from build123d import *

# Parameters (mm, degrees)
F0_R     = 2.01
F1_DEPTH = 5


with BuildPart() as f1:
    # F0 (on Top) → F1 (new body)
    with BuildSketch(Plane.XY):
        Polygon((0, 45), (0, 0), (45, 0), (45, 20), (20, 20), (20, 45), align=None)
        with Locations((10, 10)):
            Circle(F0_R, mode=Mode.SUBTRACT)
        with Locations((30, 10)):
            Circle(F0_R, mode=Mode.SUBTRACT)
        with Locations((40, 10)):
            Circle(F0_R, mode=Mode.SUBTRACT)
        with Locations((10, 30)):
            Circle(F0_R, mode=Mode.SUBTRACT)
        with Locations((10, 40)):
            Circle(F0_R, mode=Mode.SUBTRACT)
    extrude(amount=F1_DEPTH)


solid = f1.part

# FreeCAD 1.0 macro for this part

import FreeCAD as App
import Part
import Sketcher

V = App.Vector
Q = App.Units.Quantity


def add_polygon(sketch, points):
    """Adds a closed chain of lines whose ends are joined by coincident constraints."""
    first, n = sketch.GeometryCount, len(points)
    for a, b in zip(points, points[1:] + points[:1]):
        sketch.addGeometry(Part.LineSegment(App.Vector(*a, 0), App.Vector(*b, 0)), False)
    for i in range(n):
        sketch.addConstraint(Sketcher.Constraint("Coincident", first + i, 2, first + (i + 1) % n, 1))

doc = App.newDocument("Part")
body = doc.addObject("PartDesign::Body", "Body")

# Sketch on XY plane
sketch1 = body.newObject("Sketcher::SketchObject", "Sketch")
sketch1.AttachmentSupport = (doc.getObject("XY_Plane"), [""])
sketch1.MapMode = "FlatFace"
add_polygon(sketch1, [(0, 45), (0, 0), (45, 0), (45, 20), (20, 20), (20, 45)])  # lines 0-5
sketch1.addGeometry(Part.Circle(V(10, 10, 0), V(0, 0, 1), 2), False)  # 6
sketch1.addGeometry(Part.Circle(V(30, 10, 0), V(0, 0, 1), 2), False)  # 7
sketch1.addGeometry(Part.Circle(V(40, 10, 0), V(0, 0, 1), 2), False)  # 8
sketch1.addGeometry(Part.Circle(V(10, 30, 0), V(0, 0, 1), 2), False)  # 9
sketch1.addGeometry(Part.Circle(V(10, 40, 0), V(0, 0, 1), 2), False)  # 10
sketch1.addConstraint([
    Sketcher.Constraint("Vertical", 0),
    Sketcher.Constraint("Horizontal", 1),
    Sketcher.Constraint("Vertical", 2),
    Sketcher.Constraint("Horizontal", 3),
    Sketcher.Constraint("Vertical", 4),
    Sketcher.Constraint("Horizontal", 5),
    Sketcher.Constraint("Coincident", 0, 2, -1, 1),
    Sketcher.Constraint("Equal", 6, 7),
    Sketcher.Constraint("Equal", 7, 8),
    Sketcher.Constraint("Equal", 8, 9),
    Sketcher.Constraint("Equal", 9, 10),
    Sketcher.Constraint("Horizontal", 6, 3, 7, 3),
    Sketcher.Constraint("Horizontal", 7, 3, 8, 3),
    Sketcher.Constraint("Vertical", 6, 3, 9, 3),
    Sketcher.Constraint("Vertical", 9, 3, 10, 3),
    Sketcher.Constraint("Equal", 1, 0),
    Sketcher.Constraint("Equal", 5, 2),
    Sketcher.Constraint("Diameter", 6, Q("4.02 mm")),
    Sketcher.Constraint("DistanceX", 1, 1, 1, 2, Q("45 mm")),
    Sketcher.Constraint("DistanceX", 3, 2, 3, 1, Q("25 mm")),
    Sketcher.Constraint("DistanceX", -1, 1, 6, 3, Q("10 mm")),
    Sketcher.Constraint("DistanceY", -1, 1, 6, 3, Q("10 mm")),
    Sketcher.Constraint("DistanceX", -1, 1, 7, 3, Q("30 mm")),
    Sketcher.Constraint("DistanceX", -1, 1, 8, 3, Q("40 mm")),
    Sketcher.Constraint("DistanceY", -1, 1, 9, 3, Q("30 mm")),
    Sketcher.Constraint("DistanceY", -1, 1, 10, 3, Q("40 mm")),
])
pad1 = body.newObject("PartDesign::Pad", "Pad")
pad1.Profile = sketch1
pad1.Length = 5

doc.recompute()
